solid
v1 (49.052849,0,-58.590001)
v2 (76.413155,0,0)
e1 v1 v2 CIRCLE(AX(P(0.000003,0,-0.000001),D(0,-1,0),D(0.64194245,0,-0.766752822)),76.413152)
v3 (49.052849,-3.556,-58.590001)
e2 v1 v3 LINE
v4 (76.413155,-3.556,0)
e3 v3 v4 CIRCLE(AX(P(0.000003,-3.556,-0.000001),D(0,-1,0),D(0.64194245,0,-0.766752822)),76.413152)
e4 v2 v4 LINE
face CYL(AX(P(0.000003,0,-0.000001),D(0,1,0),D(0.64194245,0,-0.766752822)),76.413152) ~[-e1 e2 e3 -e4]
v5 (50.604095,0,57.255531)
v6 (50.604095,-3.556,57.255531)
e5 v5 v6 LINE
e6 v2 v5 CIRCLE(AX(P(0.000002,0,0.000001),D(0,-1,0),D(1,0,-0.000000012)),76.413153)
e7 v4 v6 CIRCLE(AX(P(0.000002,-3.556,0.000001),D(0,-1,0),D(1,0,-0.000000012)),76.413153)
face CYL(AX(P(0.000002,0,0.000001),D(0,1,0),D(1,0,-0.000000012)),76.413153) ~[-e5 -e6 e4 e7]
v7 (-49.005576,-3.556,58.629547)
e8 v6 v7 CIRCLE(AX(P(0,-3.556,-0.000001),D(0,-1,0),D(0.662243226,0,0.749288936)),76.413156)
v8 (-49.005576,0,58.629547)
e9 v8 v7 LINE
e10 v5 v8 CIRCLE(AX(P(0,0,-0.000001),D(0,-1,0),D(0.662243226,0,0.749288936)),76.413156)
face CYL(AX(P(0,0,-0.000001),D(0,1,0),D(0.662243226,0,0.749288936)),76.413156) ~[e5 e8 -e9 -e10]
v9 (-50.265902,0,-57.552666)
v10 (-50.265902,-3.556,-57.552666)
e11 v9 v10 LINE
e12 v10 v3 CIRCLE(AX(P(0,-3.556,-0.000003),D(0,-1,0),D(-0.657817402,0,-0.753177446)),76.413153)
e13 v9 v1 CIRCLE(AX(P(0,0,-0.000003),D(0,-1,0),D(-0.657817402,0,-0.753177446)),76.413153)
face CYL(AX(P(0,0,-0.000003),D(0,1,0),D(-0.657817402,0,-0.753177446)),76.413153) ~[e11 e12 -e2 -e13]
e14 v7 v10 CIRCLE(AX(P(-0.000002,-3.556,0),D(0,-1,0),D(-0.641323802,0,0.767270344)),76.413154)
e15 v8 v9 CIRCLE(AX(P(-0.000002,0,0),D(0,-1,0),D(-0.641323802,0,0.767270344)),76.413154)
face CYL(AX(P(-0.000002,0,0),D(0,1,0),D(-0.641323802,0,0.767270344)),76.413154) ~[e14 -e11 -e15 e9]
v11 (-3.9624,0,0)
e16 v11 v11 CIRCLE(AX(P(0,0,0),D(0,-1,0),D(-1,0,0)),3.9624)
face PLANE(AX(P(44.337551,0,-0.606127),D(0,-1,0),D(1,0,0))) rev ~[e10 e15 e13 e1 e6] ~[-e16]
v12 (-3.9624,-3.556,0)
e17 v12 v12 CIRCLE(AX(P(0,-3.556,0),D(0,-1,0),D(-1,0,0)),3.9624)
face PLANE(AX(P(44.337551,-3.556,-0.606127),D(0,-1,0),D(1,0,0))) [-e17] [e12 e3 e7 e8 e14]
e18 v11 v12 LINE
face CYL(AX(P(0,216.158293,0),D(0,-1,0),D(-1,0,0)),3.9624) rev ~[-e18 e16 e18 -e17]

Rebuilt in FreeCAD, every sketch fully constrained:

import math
import FreeCAD as App
import Part
import Sketcher
from FreeCAD import Vector
Q = App.Units.Quantity

doc = App.newDocument("Part")
params = doc.addObject("Spreadsheet::Sheet", "Params")
for row, (alias, value) in enumerate([
    ("pad1_length", "0.14 in"),
    ("sketch2_diameter", "0.312 in"),
    ("hole_diameter", "0.312 in"),
], start=1):
    params.set(f"A{row}", alias)
    params.set(f"B{row}", "=" + value)
    params.setAlias(f"B{row}", alias)

body = doc.addObject("PartDesign::Body", "Body")

# Sketch on XZ plane
sketch1 = body.newObject("Sketcher::SketchObject", "Sketch")
sketch1.AttachmentSupport = (doc.getObject("XZ_Plane"), [""])
sketch1.MapMode = "FlatFace"
sketch1.addGeometry([
    Part.ArcOfCircle(Part.Circle(Vector(0.000003, -0.000001, 0), Vector(0, 0, 1), 76.413152), math.radians(-50.063184), math.radians(0.000001)),  # 0
    Part.ArcOfCircle(Part.Circle(Vector(0.000002, 0.000001, 0), Vector(0, 0, 1), 76.413153), math.radians(-0.000001), math.radians(48.528821)),  # 1
    Part.ArcOfCircle(Part.Circle(Vector(0, -0.000001, 0), Vector(0, 0, 1), 76.413156), math.radians(48.528821), math.radians(129.890603)),  # 2
    Part.ArcOfCircle(Part.Circle(Vector(-0.000002, 0, 0), Vector(0, 0, 1), 76.413154), math.radians(129.890603), math.radians(228.866375)),  # 3
    Part.ArcOfCircle(Part.Circle(Vector(0, -0.000003, 0), Vector(0, 0, 1), 76.413153), math.radians(-131.133627), math.radians(-50.063181)),  # 4
], False)
sketch1.addConstraint([
    Sketcher.Constraint("Tangent", 0, 2, 1, 1),
    Sketcher.Constraint("Tangent", 1, 2, 2, 1),
    Sketcher.Constraint("Tangent", 2, 2, 3, 1),
    Sketcher.Constraint("Tangent", 3, 2, 4, 1),
    Sketcher.Constraint("Tangent", 4, 2, 0, 1),
    Sketcher.Constraint("Coincident", 0, 3, -1, 1),
    Sketcher.Constraint("Coincident", 2, 3, -1, 1),
    Sketcher.Constraint("PointOnObject", 0, 2, -1),
    Sketcher.Constraint("Radius", 0, Q("76.413152 mm")),
    Sketcher.Constraint("DistanceY", 4, 2, -1, 1, Q("58.590001 mm")),
    Sketcher.Constraint("DistanceX", 3, 2, 4, 3, Q("50.265902 mm")),
    Sketcher.Constraint("DistanceY", -1, 1, 1, 2, Q("57.255531 mm")),
    Sketcher.Constraint("DistanceY", 2, 3, 2, 2, Q("58.629548 mm")),
])
pad1 = body.newObject("PartDesign::Pad", "Pad")
pad1.Profile = sketch1
pad1.setExpression("Length", "Params.pad1_length")

# Sketch on XZ plane
sketch2 = body.newObject("Sketcher::SketchObject", "Sketch001")
sketch2.AttachmentSupport = (doc.getObject("XZ_Plane"), [""])
sketch2.MapMode = "FlatFace"
sketch2.addGeometry(Part.Circle(Vector(0, 0, 0), Vector(0, 0, 1), 3.9624), False)
sketch2.addConstraint([
    Sketcher.Constraint("Coincident", 0, 3, -1, 1),
    Sketcher.Constraint("Diameter", 0, Q("0.312 in")),
])
sketch2.setExpression("Constraints[1]", "Params.sketch2_diameter")
doc.recompute()
hole = body.newObject("PartDesign::Hole", "Hole")
hole.Profile = sketch2
hole.ThreadType = "None"
hole.setExpression("Diameter", "Params.hole_diameter")
hole.DepthType = "ThroughAll"
hole.Reversed = True

doc.recompute()
